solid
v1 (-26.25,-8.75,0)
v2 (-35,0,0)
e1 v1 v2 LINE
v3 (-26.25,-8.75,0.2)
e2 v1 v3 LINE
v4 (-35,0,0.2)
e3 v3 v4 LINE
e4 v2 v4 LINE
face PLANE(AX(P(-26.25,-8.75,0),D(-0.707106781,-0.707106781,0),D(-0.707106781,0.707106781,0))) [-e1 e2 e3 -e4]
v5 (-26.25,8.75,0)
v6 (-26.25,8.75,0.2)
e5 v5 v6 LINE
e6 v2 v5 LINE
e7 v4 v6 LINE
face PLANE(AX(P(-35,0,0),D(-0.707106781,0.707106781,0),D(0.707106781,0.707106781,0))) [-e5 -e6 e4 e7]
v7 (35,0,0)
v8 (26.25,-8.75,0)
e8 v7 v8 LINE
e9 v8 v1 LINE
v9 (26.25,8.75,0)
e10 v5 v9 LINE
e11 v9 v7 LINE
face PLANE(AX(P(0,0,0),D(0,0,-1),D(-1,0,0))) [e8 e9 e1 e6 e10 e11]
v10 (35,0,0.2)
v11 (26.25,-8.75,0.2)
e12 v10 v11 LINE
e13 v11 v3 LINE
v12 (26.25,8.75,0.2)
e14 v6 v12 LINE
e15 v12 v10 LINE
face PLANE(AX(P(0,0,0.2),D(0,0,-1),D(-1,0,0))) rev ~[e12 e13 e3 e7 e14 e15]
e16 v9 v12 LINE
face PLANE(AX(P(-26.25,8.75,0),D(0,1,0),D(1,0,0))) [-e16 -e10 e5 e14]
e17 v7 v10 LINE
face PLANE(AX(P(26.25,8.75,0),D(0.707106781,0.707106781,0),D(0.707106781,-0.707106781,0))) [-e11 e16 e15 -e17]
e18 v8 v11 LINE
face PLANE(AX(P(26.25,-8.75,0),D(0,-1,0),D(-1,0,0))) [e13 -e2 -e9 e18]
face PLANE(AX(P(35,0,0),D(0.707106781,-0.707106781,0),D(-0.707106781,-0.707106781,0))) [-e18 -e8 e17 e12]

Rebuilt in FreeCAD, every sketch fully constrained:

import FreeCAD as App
import Part
import Sketcher
Q = App.Units.Quantity

doc = App.newDocument("Part")
body = doc.addObject("PartDesign::Body", "Body")

sketch1 = body.newObject("Sketcher::SketchObject", "Sketch")
sketch1.AttachmentSupport = (doc.getObject("XY_Plane"), [""])
sketch1.MapMode = "FlatFace"
sketch1.addGeometry([
    Part.LineSegment(App.Vector(26.25, 8.75, 0), App.Vector(-26.25, 8.75, 0)),
    Part.LineSegment(App.Vector(-26.25, 8.75, 0), App.Vector(-35, 0, 0)),
    Part.LineSegment(App.Vector(-35, 0, 0), App.Vector(-26.25, -8.75, 0)),
    Part.LineSegment(App.Vector(-26.25, -8.75, 0), App.Vector(26.25, -8.75, 0)),
    Part.LineSegment(App.Vector(26.25, -8.75, 0), App.Vector(35, 0, 0)),
    Part.LineSegment(App.Vector(35, 0, 0), App.Vector(26.25, 8.75, 0)),
], False)
sketch1.addConstraint([
    Sketcher.Constraint("Coincident", 0, 2, 1, 1),
    Sketcher.Constraint("Coincident", 1, 2, 2, 1),
    Sketcher.Constraint("Coincident", 2, 2, 3, 1),
    Sketcher.Constraint("Coincident", 3, 2, 4, 1),
    Sketcher.Constraint("Coincident", 4, 2, 5, 1),
    Sketcher.Constraint("Coincident", 5, 2, 0, 1),
    Sketcher.Constraint("Horizontal", 0),
    Sketcher.Constraint("Horizontal", 3),
    Sketcher.Constraint("Symmetric", 0, 2, 3, 2, -1, 1),
    Sketcher.Constraint("Symmetric", 1, 2, 4, 2, -1, 1),
    Sketcher.Constraint("PointOnObject", 1, 2, -1),
    Sketcher.Constraint("Perpendicular", 1, 2),
    Sketcher.Constraint("Perpendicular", 4, 5),
    Sketcher.Constraint("Vertical", 0, 2, 2, 2),
    Sketcher.Constraint("DistanceX", 0, 2, 0, 1, Q("52.5 mm")),
    Sketcher.Constraint("DistanceX", 1, 2, -1, 1, Q("35 mm")),
])
pad1 = body.newObject("PartDesign::Pad", "Pad")
pad1.Profile = sketch1
pad1.Length = 0.2

doc.recompute()
